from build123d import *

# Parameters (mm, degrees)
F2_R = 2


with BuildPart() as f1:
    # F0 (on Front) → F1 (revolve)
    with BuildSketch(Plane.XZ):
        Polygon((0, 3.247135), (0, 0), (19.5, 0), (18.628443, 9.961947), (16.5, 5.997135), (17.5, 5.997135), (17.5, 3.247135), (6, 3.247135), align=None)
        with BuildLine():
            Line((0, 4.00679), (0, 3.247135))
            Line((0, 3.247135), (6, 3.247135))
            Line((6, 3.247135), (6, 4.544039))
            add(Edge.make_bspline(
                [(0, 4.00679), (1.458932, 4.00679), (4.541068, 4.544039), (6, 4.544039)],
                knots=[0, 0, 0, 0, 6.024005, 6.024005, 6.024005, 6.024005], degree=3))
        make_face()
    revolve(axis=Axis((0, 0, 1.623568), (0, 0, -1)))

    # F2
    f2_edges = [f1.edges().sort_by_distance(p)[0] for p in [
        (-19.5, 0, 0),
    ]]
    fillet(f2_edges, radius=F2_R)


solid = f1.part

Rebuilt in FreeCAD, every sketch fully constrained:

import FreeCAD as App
import Part
import Sketcher
from FreeCAD import Vector


def edges_at(feature, points):
    """Names of the edges that pass closest to the given points."""
    edges = feature.Shape.Edges
    near = lambda p: min(range(len(edges)), key=lambda i: edges[i].distToShape(Part.Vertex(*p))[0])
    return sorted({f"Edge{near(p) + 1}" for p in points})

doc = App.newDocument("Part")
body = doc.addObject("PartDesign::Body", "Body")

# Sketch on XZ plane
sketch1 = body.newObject("Sketcher::SketchObject", "Sketch")
sketch1.AttachmentSupport = (doc.getObject("XZ_Plane"), [""])
sketch1.MapMode = "FlatFace"
sketch1.addGeometry([
    Part.LineSegment(Vector(0, 0, 0), Vector(19.5, 0, 0)),  # 0
    Part.LineSegment(Vector(19.5, 0, 0), Vector(18.628443, 9.961947, 0)),  # 1
    Part.LineSegment(Vector(18.628443, 9.961947, 0), Vector(16.5, 5.997135, 0)),  # 2
    Part.LineSegment(Vector(16.5, 5.997135, 0), Vector(17.5, 5.997135, 0)),  # 3
    Part.LineSegment(Vector(17.5, 5.997135, 0), Vector(17.5, 3.247135, 0)),  # 4
    Part.LineSegment(Vector(17.5, 3.247135, 0), Vector(6, 3.247135, 0)),  # 5
    Part.LineSegment(Vector(6, 3.247135, 0), Vector(6, 4.544039, 0)),  # 6
    Part.BSplineCurve([Vector(0, 4.00679, 0), Vector(1.458932, 4.00679, 0), Vector(4.541068, 4.544039, 0), Vector(6, 4.544039, 0)], [4, 4], [0, 6.024005], False, 3, [1, 1, 1, 1], False),  # 7
    Part.LineSegment(Vector(0, 4.00679, 0), Vector(0, 0, 0)),  # 8
], False)
sketch1.addConstraint([
    Sketcher.Constraint("Block", 7),
    Sketcher.Constraint("Coincident", 0, 2, 1, 1),
    Sketcher.Constraint("Coincident", 1, 2, 2, 1),
    Sketcher.Constraint("Coincident", 2, 2, 3, 1),
    Sketcher.Constraint("Coincident", 3, 2, 4, 1),
    Sketcher.Constraint("Coincident", 4, 2, 5, 1),
    Sketcher.Constraint("Coincident", 5, 2, 6, 1),
    Sketcher.Constraint("Coincident", 6, 2, 7, 2),
    Sketcher.Constraint("Coincident", 7, 1, 8, 1),
    Sketcher.Constraint("Coincident", 8, 2, 0, 1),
    Sketcher.Constraint("Horizontal", 0),
    Sketcher.Constraint("Horizontal", 3),
    Sketcher.Constraint("Vertical", 4),
    Sketcher.Constraint("Horizontal", 5),
    Sketcher.Constraint("Vertical", 6),
    Sketcher.Constraint("Vertical", 8),
    Sketcher.Constraint("PointOnObject", 0, 2, -1),
    Sketcher.Constraint("DistanceX", 3, 1, 3, 2, 1.0),
    Sketcher.Constraint("Distance", 1, 10.0),
    Sketcher.Constraint("DistanceX", 0, 1, 0, 2, 19.5),
    Sketcher.Constraint("DistanceX", 5, 2, 5, 1, 11.5),
    Sketcher.Constraint("Distance", 2, 4.5),
    Sketcher.Constraint("DistanceY", 4, 2, 4, 1, 2.75),
    Sketcher.Constraint("DistanceY", 6, 1, 6, 2, 1.296904),
])
revolution = body.newObject("PartDesign::Revolution", "Revolution")
revolution.Profile = sketch1
revolution.ReferenceAxis = (sketch1, ["V_Axis"])
revolution.Angle = 360
doc.recompute()

fillet = body.newObject("PartDesign::Fillet", "Fillet")
fillet.Base = (revolution, edges_at(revolution, [(-19.5, 0, 0)]))
fillet.Radius = 2

doc.recompute()
